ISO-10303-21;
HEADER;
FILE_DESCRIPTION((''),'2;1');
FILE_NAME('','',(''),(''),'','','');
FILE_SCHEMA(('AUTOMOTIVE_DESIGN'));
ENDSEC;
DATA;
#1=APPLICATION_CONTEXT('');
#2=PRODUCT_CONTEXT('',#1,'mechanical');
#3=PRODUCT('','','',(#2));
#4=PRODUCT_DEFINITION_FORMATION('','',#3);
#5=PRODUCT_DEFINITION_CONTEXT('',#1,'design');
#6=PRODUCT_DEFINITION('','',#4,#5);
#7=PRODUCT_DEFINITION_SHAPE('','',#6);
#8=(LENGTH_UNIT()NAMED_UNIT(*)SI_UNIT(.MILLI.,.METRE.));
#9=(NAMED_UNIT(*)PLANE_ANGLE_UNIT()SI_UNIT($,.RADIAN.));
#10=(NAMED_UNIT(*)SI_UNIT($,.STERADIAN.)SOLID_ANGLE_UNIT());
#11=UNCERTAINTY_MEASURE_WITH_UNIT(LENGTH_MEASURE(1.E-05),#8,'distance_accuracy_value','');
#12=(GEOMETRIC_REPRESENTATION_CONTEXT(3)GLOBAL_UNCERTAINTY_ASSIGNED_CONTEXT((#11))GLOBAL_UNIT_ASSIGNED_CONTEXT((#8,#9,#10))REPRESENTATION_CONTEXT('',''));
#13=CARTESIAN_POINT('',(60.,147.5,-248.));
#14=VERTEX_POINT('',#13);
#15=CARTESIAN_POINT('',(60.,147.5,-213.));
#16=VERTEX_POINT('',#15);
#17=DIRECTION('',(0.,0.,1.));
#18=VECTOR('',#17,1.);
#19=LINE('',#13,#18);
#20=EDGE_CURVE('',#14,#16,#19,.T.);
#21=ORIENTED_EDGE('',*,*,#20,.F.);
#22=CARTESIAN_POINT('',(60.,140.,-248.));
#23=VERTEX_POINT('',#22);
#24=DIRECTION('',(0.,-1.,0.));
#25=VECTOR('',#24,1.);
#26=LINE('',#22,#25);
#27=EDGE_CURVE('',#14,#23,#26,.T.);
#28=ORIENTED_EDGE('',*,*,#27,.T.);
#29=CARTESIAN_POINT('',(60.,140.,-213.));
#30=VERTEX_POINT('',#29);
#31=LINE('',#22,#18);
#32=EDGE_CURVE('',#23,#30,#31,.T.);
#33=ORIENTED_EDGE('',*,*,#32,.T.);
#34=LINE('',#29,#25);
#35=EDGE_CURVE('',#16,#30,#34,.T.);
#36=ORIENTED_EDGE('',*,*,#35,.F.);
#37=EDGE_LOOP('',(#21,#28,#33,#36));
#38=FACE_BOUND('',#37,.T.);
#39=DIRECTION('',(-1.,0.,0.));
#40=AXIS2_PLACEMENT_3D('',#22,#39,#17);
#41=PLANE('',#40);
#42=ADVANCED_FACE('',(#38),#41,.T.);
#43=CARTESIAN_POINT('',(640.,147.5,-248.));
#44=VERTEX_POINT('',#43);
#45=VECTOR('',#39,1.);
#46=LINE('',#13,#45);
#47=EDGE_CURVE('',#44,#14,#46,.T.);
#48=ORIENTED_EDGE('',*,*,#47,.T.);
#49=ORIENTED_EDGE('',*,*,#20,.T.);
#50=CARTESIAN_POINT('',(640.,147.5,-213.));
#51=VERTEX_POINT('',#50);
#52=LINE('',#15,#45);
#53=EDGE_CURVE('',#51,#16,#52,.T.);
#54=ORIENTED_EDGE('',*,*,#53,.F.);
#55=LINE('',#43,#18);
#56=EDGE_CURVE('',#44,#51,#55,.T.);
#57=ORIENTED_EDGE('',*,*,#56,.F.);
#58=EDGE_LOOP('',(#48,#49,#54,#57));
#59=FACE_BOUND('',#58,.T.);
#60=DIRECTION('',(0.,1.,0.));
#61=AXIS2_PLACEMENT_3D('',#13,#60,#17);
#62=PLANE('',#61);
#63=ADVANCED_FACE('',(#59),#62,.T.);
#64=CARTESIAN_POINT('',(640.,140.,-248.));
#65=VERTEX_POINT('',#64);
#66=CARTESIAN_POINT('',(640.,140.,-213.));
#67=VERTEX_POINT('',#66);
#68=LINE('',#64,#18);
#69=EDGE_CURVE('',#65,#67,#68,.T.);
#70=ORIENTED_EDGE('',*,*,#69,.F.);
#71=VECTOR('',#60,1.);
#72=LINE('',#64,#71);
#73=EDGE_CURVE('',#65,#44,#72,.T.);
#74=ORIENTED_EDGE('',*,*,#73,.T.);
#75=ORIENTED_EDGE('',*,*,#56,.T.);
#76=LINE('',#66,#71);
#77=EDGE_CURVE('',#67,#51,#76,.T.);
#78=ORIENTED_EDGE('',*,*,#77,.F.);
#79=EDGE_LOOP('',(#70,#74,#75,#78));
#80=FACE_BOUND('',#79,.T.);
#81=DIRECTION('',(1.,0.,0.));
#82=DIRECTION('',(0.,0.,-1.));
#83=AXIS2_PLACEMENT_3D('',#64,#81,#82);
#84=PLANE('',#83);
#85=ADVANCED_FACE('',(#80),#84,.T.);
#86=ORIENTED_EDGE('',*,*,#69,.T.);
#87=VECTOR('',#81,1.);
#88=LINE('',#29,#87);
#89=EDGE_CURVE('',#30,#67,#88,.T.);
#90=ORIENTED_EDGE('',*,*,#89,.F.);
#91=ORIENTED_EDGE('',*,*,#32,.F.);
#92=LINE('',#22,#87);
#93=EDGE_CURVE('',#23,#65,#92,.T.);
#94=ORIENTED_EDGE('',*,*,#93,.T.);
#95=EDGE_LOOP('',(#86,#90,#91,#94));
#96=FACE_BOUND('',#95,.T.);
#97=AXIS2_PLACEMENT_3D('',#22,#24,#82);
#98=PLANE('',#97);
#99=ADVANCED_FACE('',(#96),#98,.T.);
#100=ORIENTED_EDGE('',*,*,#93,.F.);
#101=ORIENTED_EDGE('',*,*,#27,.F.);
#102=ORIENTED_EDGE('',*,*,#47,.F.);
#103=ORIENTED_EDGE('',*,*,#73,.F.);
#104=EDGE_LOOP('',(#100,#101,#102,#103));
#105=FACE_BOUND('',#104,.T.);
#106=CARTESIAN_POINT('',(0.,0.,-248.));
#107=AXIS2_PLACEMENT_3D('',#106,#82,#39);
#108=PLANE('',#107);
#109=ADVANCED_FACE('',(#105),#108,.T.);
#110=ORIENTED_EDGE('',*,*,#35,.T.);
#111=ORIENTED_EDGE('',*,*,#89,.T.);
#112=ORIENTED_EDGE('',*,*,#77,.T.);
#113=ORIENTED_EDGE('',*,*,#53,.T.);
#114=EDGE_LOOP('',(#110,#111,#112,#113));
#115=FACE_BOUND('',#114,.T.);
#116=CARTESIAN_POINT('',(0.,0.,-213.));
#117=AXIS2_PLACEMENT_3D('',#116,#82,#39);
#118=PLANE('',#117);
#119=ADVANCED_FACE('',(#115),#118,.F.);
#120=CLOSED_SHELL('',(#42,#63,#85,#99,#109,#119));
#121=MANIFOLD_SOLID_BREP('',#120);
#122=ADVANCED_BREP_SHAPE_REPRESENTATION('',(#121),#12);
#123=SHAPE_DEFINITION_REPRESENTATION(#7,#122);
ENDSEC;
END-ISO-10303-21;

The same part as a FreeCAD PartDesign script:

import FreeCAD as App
import Part
import Sketcher

V = App.Vector
Q = App.Units.Quantity


def add_polygon(sketch, points):
    """Adds a closed chain of lines whose ends are joined by coincident constraints."""
    first, n = sketch.GeometryCount, len(points)
    for a, b in zip(points, points[1:] + points[:1]):
        sketch.addGeometry(Part.LineSegment(App.Vector(*a, 0), App.Vector(*b, 0)), False)
    for i in range(n):
        sketch.addConstraint(Sketcher.Constraint("Coincident", first + i, 2, first + (i + 1) % n, 1))

doc = App.newDocument("Part")
body = doc.addObject("PartDesign::Body", "Body")

# Sketch on XY plane
sketch1 = body.newObject("Sketcher::SketchObject", "Sketch")
sketch1.AttachmentSupport = (doc.getObject("XY_Plane"), [""])
sketch1.MapMode = "FlatFace"
sketch1.AttachmentOffset = App.Placement(V(0, 0, -213), App.Rotation())
add_polygon(sketch1, [(60, 148), (60, 140), (640, 140), (640, 148)])  # lines 0-3
sketch1.addConstraint(Sketcher.Constraint("Vertical", 0))
sketch1.addConstraint(Sketcher.Constraint("Horizontal", 1))
sketch1.addConstraint(Sketcher.Constraint("Vertical", 2))
sketch1.addConstraint(Sketcher.Constraint("Horizontal", 3))
sketch1.addConstraint(Sketcher.Constraint("DistanceX", 1, 1, 1, 2, Q("580 mm")))
sketch1.addConstraint(Sketcher.Constraint("DistanceY", 0, 2, 0, 1, Q("7.5 mm")))
sketch1.addConstraint(Sketcher.Constraint("DistanceX", -1, 1, 0, 2, Q("60 mm")))
sketch1.addConstraint(Sketcher.Constraint("DistanceY", -1, 1, 0, 2, Q("140 mm")))
pad1 = body.newObject("PartDesign::Pad", "Pad")
pad1.Profile = sketch1
pad1.Length = 35
pad1.Reversed = True

doc.recompute()
